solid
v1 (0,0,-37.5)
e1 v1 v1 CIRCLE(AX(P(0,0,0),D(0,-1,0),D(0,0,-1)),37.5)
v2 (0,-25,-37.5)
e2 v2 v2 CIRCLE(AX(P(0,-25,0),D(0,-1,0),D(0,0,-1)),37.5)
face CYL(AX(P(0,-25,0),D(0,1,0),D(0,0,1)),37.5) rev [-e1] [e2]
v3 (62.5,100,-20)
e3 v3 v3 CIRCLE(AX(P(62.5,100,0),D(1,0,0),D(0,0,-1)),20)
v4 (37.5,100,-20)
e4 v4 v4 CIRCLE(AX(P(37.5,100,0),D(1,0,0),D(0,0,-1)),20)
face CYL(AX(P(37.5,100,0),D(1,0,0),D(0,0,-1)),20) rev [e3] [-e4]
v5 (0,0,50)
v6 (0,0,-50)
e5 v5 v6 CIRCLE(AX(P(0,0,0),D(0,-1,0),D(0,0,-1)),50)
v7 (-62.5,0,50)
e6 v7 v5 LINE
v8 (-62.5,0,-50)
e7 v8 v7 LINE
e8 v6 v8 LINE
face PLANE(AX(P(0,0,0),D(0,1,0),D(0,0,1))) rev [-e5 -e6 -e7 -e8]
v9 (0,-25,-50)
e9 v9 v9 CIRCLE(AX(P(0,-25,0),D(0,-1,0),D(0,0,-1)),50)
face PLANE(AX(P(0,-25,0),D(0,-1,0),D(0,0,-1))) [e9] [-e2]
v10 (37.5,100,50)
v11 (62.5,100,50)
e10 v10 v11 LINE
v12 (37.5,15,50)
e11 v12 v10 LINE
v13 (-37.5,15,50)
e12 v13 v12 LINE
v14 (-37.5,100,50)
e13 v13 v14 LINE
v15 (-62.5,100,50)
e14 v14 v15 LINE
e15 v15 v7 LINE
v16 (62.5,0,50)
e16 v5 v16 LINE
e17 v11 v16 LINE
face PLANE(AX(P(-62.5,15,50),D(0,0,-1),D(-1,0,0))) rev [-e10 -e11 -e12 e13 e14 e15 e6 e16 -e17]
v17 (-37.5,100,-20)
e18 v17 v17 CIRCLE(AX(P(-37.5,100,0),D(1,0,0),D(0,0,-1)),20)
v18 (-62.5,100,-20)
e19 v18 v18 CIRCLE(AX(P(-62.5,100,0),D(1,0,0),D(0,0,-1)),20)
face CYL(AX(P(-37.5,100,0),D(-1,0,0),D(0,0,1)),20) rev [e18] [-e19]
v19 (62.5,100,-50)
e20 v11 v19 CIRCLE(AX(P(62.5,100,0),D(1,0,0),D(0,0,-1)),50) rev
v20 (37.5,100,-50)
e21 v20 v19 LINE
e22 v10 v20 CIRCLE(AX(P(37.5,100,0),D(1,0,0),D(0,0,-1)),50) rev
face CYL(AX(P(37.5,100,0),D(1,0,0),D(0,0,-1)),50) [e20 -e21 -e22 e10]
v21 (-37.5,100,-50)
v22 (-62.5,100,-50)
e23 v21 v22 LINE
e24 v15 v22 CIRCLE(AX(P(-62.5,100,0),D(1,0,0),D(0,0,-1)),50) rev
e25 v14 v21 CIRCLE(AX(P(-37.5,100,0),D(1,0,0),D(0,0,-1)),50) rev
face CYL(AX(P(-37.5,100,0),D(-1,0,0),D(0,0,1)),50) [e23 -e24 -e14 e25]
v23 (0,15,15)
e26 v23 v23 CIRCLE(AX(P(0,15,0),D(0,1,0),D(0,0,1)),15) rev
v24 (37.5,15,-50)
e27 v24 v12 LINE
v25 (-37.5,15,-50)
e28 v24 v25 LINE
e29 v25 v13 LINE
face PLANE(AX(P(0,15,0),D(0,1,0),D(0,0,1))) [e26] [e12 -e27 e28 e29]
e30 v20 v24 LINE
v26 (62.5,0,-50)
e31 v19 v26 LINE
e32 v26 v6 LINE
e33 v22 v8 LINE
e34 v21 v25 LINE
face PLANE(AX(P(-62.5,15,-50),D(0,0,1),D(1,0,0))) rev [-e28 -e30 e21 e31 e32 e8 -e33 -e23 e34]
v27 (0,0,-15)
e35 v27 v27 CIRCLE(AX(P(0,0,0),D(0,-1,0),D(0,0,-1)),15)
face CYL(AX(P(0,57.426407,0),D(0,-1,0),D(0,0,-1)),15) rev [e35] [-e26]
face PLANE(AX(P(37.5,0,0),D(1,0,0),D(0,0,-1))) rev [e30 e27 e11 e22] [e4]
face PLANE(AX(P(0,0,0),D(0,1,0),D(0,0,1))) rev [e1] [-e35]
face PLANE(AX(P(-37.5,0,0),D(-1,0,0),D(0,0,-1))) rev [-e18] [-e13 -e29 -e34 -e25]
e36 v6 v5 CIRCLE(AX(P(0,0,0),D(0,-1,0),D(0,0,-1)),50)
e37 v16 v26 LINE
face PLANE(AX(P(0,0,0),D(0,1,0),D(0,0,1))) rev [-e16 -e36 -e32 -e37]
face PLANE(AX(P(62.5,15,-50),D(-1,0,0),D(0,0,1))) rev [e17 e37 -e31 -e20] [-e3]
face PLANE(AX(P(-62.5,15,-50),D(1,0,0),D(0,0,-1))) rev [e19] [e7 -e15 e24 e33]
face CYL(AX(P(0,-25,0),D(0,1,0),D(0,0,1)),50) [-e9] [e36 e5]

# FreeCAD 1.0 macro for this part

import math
import FreeCAD as App
import Part
import Sketcher

V = App.Vector
Q = App.Units.Quantity

doc = App.newDocument("Part")
params = doc.addObject("Spreadsheet::Sheet", "Params")
for row, (alias, value) in enumerate([
    ("sketch1_width", "125 mm"),
    ("sketch1_height", "100 mm"),
    ("pad1_length", "15 mm"),
    ("sketch2_diameter", "100 mm"),
    ("sketch2_diameter2", "75 mm"),
    ("pad2_length", "25 mm"),
    ("sketch3_diameter", "40 mm"),
    ("sketch3_radius", "50 mm"),
    ("sketch3_width", "85 mm"),
    ("pad3_length", "25 mm"),
    ("sketch4_diameter", "30 mm"),
    ("pocket1_length", "15 mm"),
], start=1):
    params.set(f"A{row}", alias)
    params.set(f"B{row}", "=" + value)
    params.setAlias(f"B{row}", alias)

body = doc.addObject("PartDesign::Body", "Body")

# Sketch on XZ plane
sketch1 = doc.addObject("Sketcher::SketchObject", "Sketch")
body.addObject(sketch1)
sketch1.AttachmentSupport = (doc.XZ_Plane, [""])
sketch1.MapMode = "FlatFace"
sketch1.addGeometry([
    Part.LineSegment(V(-62.5, -50, 0), V(-62.5, 50, 0)),
    Part.LineSegment(V(-62.5, 50, 0), V(62.5, 50, 0)),
    Part.LineSegment(V(62.5, 50, 0), V(62.5, -50, 0)),
    Part.LineSegment(V(62.5, -50, 0), V(-62.5, -50, 0)),
], False)
sketch1.addConstraint([
    Sketcher.Constraint("Coincident", 0, 2, 1, 1),
    Sketcher.Constraint("Coincident", 1, 2, 2, 1),
    Sketcher.Constraint("Coincident", 2, 2, 3, 1),
    Sketcher.Constraint("Coincident", 3, 2, 0, 1),
    Sketcher.Constraint("Vertical", 0),
    Sketcher.Constraint("Horizontal", 1),
    Sketcher.Constraint("Vertical", 2),
    Sketcher.Constraint("Horizontal", 3),
    Sketcher.Constraint("Symmetric", 0, 2, 2, 2, -1, 1),
    Sketcher.Constraint("DistanceX", 1, 1, 1, 2, Q("125 mm")),
    Sketcher.Constraint("DistanceY", 0, 1, 0, 2, Q("100 mm")),
])
sketch1.setExpression("Constraints[9]", "Params.sketch1_width")
sketch1.setExpression("Constraints[10]", "Params.sketch1_height")
pad1 = doc.addObject("PartDesign::Pad", "Pad")
body.addObject(pad1)
pad1.Profile = sketch1
pad1.setExpression("Length", "Params.pad1_length")
pad1.Reversed = True

# Sketch on XZ plane
sketch2 = doc.addObject("Sketcher::SketchObject", "Sketch001")
body.addObject(sketch2)
sketch2.AttachmentSupport = (doc.XZ_Plane, [""])
sketch2.MapMode = "FlatFace"
sketch2.addGeometry([
    Part.Circle(V(0, 0, 0), V(0, 0, 1), 50),
    Part.Circle(V(0, 0, 0), V(0, 0, 1), 37.5),
], False)
sketch2.addConstraint([
    Sketcher.Constraint("Coincident", 0, 3, -1, 1),
    Sketcher.Constraint("Coincident", 1, 3, -1, 1),
    Sketcher.Constraint("Diameter", 0, Q("100 mm")),
    Sketcher.Constraint("Diameter", 1, Q("75 mm")),
])
sketch2.setExpression("Constraints[2]", "Params.sketch2_diameter")
sketch2.setExpression("Constraints[3]", "Params.sketch2_diameter2")
pad2 = doc.addObject("PartDesign::Pad", "Pad001")
body.addObject(pad2)
pad2.Profile = sketch2
pad2.setExpression("Length", "Params.pad2_length")

# Sketch on YZ plane
sketch3 = doc.addObject("Sketcher::SketchObject", "Sketch002")
body.addObject(sketch3)
sketch3.AttachmentSupport = (doc.YZ_Plane, [""])
sketch3.MapMode = "FlatFace"
sketch3.AttachmentOffset = App.Placement(V(0, 0, 62.5), App.Rotation())
sketch3.addGeometry([
    Part.ArcOfCircle(Part.Circle(V(100, 0, 0), V(0, 0, 1), 50), math.radians(-90), math.radians(90)),  # 0
    Part.LineSegment(V(100, 50, 0), V(15, 50, 0)),  # 1
    Part.LineSegment(V(15, 50, 0), V(15, -50, 0)),  # 2
    Part.LineSegment(V(15, -50, 0), V(100, -50, 0)),  # 3
    Part.Circle(V(100, 0, 0), V(0, 0, 1), 20),  # 4
], False)
sketch3.addConstraint([
    Sketcher.Constraint("Tangent", 0, 2, 1, 1),
    Sketcher.Constraint("Coincident", 1, 2, 2, 1),
    Sketcher.Constraint("Coincident", 2, 2, 3, 1),
    Sketcher.Constraint("Tangent", 3, 2, 0, 1),
    Sketcher.Constraint("Horizontal", 1),
    Sketcher.Constraint("Vertical", 2),
    Sketcher.Constraint("Horizontal", 3),
    Sketcher.Constraint("Coincident", 4, 3, 0, 3),
    Sketcher.Constraint("PointOnObject", 0, 3, -1),
    Sketcher.Constraint("Diameter", 4, Q("40 mm")),
    Sketcher.Constraint("Radius", 0, Q("50 mm")),
    Sketcher.Constraint("DistanceX", 1, 2, 1, 1, Q("85 mm")),
    Sketcher.Constraint("DistanceX", -1, 1, 0, 3, Q("100 mm")),
])
sketch3.setExpression("Constraints[9]", "Params.sketch3_diameter")
sketch3.setExpression("Constraints[10]", "Params.sketch3_radius")
sketch3.setExpression("Constraints[11]", "Params.sketch3_width")
pad3 = doc.addObject("PartDesign::Pad", "Pad002")
body.addObject(pad3)
pad3.Profile = sketch3
pad3.setExpression("Length", "Params.pad3_length")
pad3.Reversed = True
doc.recompute()

mirrored = doc.addObject("PartDesign::Mirrored", "Mirrored")
body.addObject(mirrored)
mirrored.Originals = [pad1, pad3]
mirrored.MirrorPlane = (doc.YZ_Plane, [""])
body.Tip = mirrored

# Sketch on XZ plane
sketch4 = doc.addObject("Sketcher::SketchObject", "Sketch003")
body.addObject(sketch4)
sketch4.AttachmentSupport = (doc.XZ_Plane, [""])
sketch4.MapMode = "FlatFace"
sketch4.addGeometry(Part.Circle(V(0, 0, 0), V(0, 0, 1), 15), False)
sketch4.addConstraint([
    Sketcher.Constraint("Coincident", 0, 3, -1, 1),
    Sketcher.Constraint("Diameter", 0, Q("30 mm")),
])
sketch4.setExpression("Constraints[1]", "Params.sketch4_diameter")
pocket1 = doc.addObject("PartDesign::Pocket", "Pocket")
body.addObject(pocket1)
pocket1.Profile = sketch4
pocket1.setExpression("Length", "Params.pocket1_length")

doc.recompute()
